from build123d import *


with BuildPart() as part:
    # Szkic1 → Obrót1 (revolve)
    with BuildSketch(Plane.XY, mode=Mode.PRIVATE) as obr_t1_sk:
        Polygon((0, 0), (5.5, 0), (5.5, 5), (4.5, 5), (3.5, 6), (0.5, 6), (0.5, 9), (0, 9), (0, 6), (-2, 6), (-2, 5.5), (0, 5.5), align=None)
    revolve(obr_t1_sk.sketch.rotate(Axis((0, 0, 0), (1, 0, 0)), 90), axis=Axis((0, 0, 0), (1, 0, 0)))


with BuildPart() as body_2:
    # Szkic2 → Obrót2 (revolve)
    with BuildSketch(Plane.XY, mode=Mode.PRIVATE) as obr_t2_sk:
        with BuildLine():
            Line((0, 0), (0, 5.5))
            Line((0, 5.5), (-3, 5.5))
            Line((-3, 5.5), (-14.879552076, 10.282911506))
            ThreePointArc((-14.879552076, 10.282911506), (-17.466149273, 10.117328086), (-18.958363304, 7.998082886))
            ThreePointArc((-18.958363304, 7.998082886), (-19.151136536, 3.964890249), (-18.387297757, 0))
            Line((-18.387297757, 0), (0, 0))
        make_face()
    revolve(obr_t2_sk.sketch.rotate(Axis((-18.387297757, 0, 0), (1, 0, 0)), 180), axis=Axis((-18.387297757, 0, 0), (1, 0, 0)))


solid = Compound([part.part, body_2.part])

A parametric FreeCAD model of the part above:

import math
import FreeCAD as App
import Part
import Sketcher

V = App.Vector
Q = App.Units.Quantity

doc = App.newDocument("Part")
params = doc.addObject("Spreadsheet::Sheet", "Params")
for row, (alias, value) in enumerate([
    ("sketch1_width", "1 mm"),
    ("sketch1_width2", "3 mm"),
    ("sketch1_width3", "2 mm"),
    ("sketch1_height", "5 mm"),
    ("sketch1_width4", "5.5 mm"),
    ("revolution_angle", "360 deg"),
    ("sketch2_radius", "3 mm"),
    ("sketch2_radius2", "17 mm"),
    ("sketch2_width", "3 mm"),
    ("sketch2_height", "5.5 mm"),
    ("revolution2_angle", "360 deg"),
], start=1):
    params.set(f"A{row}", alias)
    params.set(f"B{row}", "=" + value)
    params.setAlias(f"B{row}", alias)

body = doc.addObject("PartDesign::Body", "Body")

# Sketch on XY plane
sketch1 = doc.addObject("Sketcher::SketchObject", "Sketch")
body.addObject(sketch1)
sketch1.AttachmentSupport = (doc.XY_Plane, [""])
sketch1.MapMode = "FlatFace"
sketch1.addGeometry([
    Part.LineSegment(V(0, 0, 0), V(5.5, 0, 0)),  # 0
    Part.LineSegment(V(5.5, 0, 0), V(5.5, 5, 0)),  # 1
    Part.LineSegment(V(5.5, 5, 0), V(4.5, 5, 0)),  # 2
    Part.LineSegment(V(4.5, 5, 0), V(3.5, 6, 0)),  # 3
    Part.LineSegment(V(3.5, 6, 0), V(0.5, 6, 0)),  # 4
    Part.LineSegment(V(0.5, 6, 0), V(0.5, 9, 0)),  # 5
    Part.LineSegment(V(0.5, 9, 0), V(0, 9, 0)),  # 6
    Part.LineSegment(V(0, 9, 0), V(0, 6, 0)),  # 7
    Part.LineSegment(V(0, 6, 0), V(-2, 6, 0)),  # 8
    Part.LineSegment(V(-2, 6, 0), V(-2, 5.5, 0)),  # 9
    Part.LineSegment(V(-2, 5.5, 0), V(0, 5.5, 0)),  # 10
    Part.LineSegment(V(0, 5.5, 0), V(0, 0, 0)),  # 11
], False)
sketch1.addConstraint([
    Sketcher.Constraint("Coincident", 0, 2, 1, 1),
    Sketcher.Constraint("Coincident", 1, 2, 2, 1),
    Sketcher.Constraint("Coincident", 2, 2, 3, 1),
    Sketcher.Constraint("Coincident", 3, 2, 4, 1),
    Sketcher.Constraint("Coincident", 4, 2, 5, 1),
    Sketcher.Constraint("Coincident", 5, 2, 6, 1),
    Sketcher.Constraint("Coincident", 6, 2, 7, 1),
    Sketcher.Constraint("Coincident", 7, 2, 8, 1),
    Sketcher.Constraint("Coincident", 8, 2, 9, 1),
    Sketcher.Constraint("Coincident", 9, 2, 10, 1),
    Sketcher.Constraint("Coincident", 10, 2, 11, 1),
    Sketcher.Constraint("Coincident", 11, 2, 0, 1),
    Sketcher.Constraint("Horizontal", 0),
    Sketcher.Constraint("Vertical", 1),
    Sketcher.Constraint("Horizontal", 2),
    Sketcher.Constraint("Horizontal", 4),
    Sketcher.Constraint("Vertical", 5),
    Sketcher.Constraint("Horizontal", 6),
    Sketcher.Constraint("Vertical", 7),
    Sketcher.Constraint("Horizontal", 8),
    Sketcher.Constraint("Vertical", 9),
    Sketcher.Constraint("Horizontal", 10),
    Sketcher.Constraint("Vertical", 11),
    Sketcher.Constraint("Coincident", 11, 2, -1, 1),
    Sketcher.Constraint("PointOnObject", 6, 2, -2),
    Sketcher.Constraint("Horizontal", 4, 2, 7, 2),
    Sketcher.Constraint("Equal", 4, 5),
    Sketcher.Constraint("Equal", 6, 9),
    Sketcher.Constraint("Equal", 0, 11),
    Sketcher.Constraint("DistanceX", 2, 2, 2, 1, Q("1 mm")),
    Sketcher.Constraint("DistanceX", 4, 2, 4, 1, Q("3 mm")),
    Sketcher.Constraint("DistanceX", 8, 2, 8, 1, Q("2 mm")),
    Sketcher.Constraint("DistanceY", 1, 1, 1, 2, Q("5 mm")),
    Sketcher.Constraint("Angle", 3, Q("135 deg")),
    Sketcher.Constraint("DistanceX", 0, 1, 0, 2, Q("5.5 mm")),
])
sketch1.setExpression("Constraints[29]", "Params.sketch1_width")
sketch1.setExpression("Constraints[30]", "Params.sketch1_width2")
sketch1.setExpression("Constraints[31]", "Params.sketch1_width3")
sketch1.setExpression("Constraints[32]", "Params.sketch1_height")
sketch1.setExpression("Constraints[34]", "Params.sketch1_width4")
revolution = doc.addObject("PartDesign::Revolution", "Revolution")
body.addObject(revolution)
revolution.Profile = sketch1
revolution.ReferenceAxis = (sketch1, ["H_Axis"])
revolution.setExpression("Angle", "Params.revolution_angle")
body2 = doc.addObject("PartDesign::Body", "Body001")

# Sketch on XY plane
sketch2 = doc.addObject("Sketcher::SketchObject", "Sketch001")
body2.addObject(sketch2)
sketch2.AttachmentSupport = (doc.getObject("XY_Plane001"), [""])
sketch2.MapMode = "FlatFace"
sketch2.addGeometry([
    Part.LineSegment(V(0, 0, 0), V(0, 5.5, 0)),  # 0
    Part.LineSegment(V(0, 5.5, 0), V(-3, 5.5, 0)),  # 1
    Part.LineSegment(V(-3, 5.5, 0), V(-14.9, 10.3, 0)),  # 2
    Part.ArcOfCircle(Part.Circle(V(-16, 7.5, 0), V(0, 0, 1), 3), math.radians(68), math.radians(170)),  # 3
    Part.ArcOfCircle(Part.Circle(V(-2.2, 5.2, 0), V(0, 0, 1), 17), math.radians(170), math.radians(198)),  # 4
    Part.LineSegment(V(-18.4, 0, 0), V(0, 0, 0)),  # 5
], False)
sketch2.addConstraint([
    Sketcher.Constraint("Coincident", 0, 2, 1, 1),
    Sketcher.Constraint("Coincident", 1, 2, 2, 1),
    Sketcher.Constraint("Tangent", 2, 2, 3, 1),
    Sketcher.Constraint("Tangent", 3, 2, 4, 1),
    Sketcher.Constraint("Coincident", 4, 2, 5, 1),
    Sketcher.Constraint("Coincident", 5, 2, 0, 1),
    Sketcher.Constraint("Vertical", 0),
    Sketcher.Constraint("Horizontal", 1),
    Sketcher.Constraint("Horizontal", 5),
    Sketcher.Constraint("Coincident", 5, 2, -1, 1),
    Sketcher.Constraint("Radius", 3, Q("3 mm")),
    Sketcher.Constraint("Radius", 4, Q("17 mm")),
    Sketcher.Constraint("DistanceX", 1, 2, 1, 1, Q("3 mm")),
    Sketcher.Constraint("DistanceY", 0, 1, 0, 2, Q("5.5 mm")),
    Sketcher.Constraint("DistanceX", 3, 3, -1, 1, Q("16 mm")),
    Sketcher.Constraint("DistanceY", 0, 2, 3, 3, Q("2 mm")),
    Sketcher.Constraint("DistanceY", 4, 3, 2, 2, Q("5.107298 mm")),
])
sketch2.setExpression("Constraints[10]", "Params.sketch2_radius")
sketch2.setExpression("Constraints[11]", "Params.sketch2_radius2")
sketch2.setExpression("Constraints[12]", "Params.sketch2_width")
sketch2.setExpression("Constraints[13]", "Params.sketch2_height")
revolution2 = doc.addObject("PartDesign::Revolution", "Revolution001")
body2.addObject(revolution2)
revolution2.Profile = sketch2
revolution2.ReferenceAxis = (sketch2, ["H_Axis"])
revolution2.setExpression("Angle", "Params.revolution2_angle")

doc.recompute()
